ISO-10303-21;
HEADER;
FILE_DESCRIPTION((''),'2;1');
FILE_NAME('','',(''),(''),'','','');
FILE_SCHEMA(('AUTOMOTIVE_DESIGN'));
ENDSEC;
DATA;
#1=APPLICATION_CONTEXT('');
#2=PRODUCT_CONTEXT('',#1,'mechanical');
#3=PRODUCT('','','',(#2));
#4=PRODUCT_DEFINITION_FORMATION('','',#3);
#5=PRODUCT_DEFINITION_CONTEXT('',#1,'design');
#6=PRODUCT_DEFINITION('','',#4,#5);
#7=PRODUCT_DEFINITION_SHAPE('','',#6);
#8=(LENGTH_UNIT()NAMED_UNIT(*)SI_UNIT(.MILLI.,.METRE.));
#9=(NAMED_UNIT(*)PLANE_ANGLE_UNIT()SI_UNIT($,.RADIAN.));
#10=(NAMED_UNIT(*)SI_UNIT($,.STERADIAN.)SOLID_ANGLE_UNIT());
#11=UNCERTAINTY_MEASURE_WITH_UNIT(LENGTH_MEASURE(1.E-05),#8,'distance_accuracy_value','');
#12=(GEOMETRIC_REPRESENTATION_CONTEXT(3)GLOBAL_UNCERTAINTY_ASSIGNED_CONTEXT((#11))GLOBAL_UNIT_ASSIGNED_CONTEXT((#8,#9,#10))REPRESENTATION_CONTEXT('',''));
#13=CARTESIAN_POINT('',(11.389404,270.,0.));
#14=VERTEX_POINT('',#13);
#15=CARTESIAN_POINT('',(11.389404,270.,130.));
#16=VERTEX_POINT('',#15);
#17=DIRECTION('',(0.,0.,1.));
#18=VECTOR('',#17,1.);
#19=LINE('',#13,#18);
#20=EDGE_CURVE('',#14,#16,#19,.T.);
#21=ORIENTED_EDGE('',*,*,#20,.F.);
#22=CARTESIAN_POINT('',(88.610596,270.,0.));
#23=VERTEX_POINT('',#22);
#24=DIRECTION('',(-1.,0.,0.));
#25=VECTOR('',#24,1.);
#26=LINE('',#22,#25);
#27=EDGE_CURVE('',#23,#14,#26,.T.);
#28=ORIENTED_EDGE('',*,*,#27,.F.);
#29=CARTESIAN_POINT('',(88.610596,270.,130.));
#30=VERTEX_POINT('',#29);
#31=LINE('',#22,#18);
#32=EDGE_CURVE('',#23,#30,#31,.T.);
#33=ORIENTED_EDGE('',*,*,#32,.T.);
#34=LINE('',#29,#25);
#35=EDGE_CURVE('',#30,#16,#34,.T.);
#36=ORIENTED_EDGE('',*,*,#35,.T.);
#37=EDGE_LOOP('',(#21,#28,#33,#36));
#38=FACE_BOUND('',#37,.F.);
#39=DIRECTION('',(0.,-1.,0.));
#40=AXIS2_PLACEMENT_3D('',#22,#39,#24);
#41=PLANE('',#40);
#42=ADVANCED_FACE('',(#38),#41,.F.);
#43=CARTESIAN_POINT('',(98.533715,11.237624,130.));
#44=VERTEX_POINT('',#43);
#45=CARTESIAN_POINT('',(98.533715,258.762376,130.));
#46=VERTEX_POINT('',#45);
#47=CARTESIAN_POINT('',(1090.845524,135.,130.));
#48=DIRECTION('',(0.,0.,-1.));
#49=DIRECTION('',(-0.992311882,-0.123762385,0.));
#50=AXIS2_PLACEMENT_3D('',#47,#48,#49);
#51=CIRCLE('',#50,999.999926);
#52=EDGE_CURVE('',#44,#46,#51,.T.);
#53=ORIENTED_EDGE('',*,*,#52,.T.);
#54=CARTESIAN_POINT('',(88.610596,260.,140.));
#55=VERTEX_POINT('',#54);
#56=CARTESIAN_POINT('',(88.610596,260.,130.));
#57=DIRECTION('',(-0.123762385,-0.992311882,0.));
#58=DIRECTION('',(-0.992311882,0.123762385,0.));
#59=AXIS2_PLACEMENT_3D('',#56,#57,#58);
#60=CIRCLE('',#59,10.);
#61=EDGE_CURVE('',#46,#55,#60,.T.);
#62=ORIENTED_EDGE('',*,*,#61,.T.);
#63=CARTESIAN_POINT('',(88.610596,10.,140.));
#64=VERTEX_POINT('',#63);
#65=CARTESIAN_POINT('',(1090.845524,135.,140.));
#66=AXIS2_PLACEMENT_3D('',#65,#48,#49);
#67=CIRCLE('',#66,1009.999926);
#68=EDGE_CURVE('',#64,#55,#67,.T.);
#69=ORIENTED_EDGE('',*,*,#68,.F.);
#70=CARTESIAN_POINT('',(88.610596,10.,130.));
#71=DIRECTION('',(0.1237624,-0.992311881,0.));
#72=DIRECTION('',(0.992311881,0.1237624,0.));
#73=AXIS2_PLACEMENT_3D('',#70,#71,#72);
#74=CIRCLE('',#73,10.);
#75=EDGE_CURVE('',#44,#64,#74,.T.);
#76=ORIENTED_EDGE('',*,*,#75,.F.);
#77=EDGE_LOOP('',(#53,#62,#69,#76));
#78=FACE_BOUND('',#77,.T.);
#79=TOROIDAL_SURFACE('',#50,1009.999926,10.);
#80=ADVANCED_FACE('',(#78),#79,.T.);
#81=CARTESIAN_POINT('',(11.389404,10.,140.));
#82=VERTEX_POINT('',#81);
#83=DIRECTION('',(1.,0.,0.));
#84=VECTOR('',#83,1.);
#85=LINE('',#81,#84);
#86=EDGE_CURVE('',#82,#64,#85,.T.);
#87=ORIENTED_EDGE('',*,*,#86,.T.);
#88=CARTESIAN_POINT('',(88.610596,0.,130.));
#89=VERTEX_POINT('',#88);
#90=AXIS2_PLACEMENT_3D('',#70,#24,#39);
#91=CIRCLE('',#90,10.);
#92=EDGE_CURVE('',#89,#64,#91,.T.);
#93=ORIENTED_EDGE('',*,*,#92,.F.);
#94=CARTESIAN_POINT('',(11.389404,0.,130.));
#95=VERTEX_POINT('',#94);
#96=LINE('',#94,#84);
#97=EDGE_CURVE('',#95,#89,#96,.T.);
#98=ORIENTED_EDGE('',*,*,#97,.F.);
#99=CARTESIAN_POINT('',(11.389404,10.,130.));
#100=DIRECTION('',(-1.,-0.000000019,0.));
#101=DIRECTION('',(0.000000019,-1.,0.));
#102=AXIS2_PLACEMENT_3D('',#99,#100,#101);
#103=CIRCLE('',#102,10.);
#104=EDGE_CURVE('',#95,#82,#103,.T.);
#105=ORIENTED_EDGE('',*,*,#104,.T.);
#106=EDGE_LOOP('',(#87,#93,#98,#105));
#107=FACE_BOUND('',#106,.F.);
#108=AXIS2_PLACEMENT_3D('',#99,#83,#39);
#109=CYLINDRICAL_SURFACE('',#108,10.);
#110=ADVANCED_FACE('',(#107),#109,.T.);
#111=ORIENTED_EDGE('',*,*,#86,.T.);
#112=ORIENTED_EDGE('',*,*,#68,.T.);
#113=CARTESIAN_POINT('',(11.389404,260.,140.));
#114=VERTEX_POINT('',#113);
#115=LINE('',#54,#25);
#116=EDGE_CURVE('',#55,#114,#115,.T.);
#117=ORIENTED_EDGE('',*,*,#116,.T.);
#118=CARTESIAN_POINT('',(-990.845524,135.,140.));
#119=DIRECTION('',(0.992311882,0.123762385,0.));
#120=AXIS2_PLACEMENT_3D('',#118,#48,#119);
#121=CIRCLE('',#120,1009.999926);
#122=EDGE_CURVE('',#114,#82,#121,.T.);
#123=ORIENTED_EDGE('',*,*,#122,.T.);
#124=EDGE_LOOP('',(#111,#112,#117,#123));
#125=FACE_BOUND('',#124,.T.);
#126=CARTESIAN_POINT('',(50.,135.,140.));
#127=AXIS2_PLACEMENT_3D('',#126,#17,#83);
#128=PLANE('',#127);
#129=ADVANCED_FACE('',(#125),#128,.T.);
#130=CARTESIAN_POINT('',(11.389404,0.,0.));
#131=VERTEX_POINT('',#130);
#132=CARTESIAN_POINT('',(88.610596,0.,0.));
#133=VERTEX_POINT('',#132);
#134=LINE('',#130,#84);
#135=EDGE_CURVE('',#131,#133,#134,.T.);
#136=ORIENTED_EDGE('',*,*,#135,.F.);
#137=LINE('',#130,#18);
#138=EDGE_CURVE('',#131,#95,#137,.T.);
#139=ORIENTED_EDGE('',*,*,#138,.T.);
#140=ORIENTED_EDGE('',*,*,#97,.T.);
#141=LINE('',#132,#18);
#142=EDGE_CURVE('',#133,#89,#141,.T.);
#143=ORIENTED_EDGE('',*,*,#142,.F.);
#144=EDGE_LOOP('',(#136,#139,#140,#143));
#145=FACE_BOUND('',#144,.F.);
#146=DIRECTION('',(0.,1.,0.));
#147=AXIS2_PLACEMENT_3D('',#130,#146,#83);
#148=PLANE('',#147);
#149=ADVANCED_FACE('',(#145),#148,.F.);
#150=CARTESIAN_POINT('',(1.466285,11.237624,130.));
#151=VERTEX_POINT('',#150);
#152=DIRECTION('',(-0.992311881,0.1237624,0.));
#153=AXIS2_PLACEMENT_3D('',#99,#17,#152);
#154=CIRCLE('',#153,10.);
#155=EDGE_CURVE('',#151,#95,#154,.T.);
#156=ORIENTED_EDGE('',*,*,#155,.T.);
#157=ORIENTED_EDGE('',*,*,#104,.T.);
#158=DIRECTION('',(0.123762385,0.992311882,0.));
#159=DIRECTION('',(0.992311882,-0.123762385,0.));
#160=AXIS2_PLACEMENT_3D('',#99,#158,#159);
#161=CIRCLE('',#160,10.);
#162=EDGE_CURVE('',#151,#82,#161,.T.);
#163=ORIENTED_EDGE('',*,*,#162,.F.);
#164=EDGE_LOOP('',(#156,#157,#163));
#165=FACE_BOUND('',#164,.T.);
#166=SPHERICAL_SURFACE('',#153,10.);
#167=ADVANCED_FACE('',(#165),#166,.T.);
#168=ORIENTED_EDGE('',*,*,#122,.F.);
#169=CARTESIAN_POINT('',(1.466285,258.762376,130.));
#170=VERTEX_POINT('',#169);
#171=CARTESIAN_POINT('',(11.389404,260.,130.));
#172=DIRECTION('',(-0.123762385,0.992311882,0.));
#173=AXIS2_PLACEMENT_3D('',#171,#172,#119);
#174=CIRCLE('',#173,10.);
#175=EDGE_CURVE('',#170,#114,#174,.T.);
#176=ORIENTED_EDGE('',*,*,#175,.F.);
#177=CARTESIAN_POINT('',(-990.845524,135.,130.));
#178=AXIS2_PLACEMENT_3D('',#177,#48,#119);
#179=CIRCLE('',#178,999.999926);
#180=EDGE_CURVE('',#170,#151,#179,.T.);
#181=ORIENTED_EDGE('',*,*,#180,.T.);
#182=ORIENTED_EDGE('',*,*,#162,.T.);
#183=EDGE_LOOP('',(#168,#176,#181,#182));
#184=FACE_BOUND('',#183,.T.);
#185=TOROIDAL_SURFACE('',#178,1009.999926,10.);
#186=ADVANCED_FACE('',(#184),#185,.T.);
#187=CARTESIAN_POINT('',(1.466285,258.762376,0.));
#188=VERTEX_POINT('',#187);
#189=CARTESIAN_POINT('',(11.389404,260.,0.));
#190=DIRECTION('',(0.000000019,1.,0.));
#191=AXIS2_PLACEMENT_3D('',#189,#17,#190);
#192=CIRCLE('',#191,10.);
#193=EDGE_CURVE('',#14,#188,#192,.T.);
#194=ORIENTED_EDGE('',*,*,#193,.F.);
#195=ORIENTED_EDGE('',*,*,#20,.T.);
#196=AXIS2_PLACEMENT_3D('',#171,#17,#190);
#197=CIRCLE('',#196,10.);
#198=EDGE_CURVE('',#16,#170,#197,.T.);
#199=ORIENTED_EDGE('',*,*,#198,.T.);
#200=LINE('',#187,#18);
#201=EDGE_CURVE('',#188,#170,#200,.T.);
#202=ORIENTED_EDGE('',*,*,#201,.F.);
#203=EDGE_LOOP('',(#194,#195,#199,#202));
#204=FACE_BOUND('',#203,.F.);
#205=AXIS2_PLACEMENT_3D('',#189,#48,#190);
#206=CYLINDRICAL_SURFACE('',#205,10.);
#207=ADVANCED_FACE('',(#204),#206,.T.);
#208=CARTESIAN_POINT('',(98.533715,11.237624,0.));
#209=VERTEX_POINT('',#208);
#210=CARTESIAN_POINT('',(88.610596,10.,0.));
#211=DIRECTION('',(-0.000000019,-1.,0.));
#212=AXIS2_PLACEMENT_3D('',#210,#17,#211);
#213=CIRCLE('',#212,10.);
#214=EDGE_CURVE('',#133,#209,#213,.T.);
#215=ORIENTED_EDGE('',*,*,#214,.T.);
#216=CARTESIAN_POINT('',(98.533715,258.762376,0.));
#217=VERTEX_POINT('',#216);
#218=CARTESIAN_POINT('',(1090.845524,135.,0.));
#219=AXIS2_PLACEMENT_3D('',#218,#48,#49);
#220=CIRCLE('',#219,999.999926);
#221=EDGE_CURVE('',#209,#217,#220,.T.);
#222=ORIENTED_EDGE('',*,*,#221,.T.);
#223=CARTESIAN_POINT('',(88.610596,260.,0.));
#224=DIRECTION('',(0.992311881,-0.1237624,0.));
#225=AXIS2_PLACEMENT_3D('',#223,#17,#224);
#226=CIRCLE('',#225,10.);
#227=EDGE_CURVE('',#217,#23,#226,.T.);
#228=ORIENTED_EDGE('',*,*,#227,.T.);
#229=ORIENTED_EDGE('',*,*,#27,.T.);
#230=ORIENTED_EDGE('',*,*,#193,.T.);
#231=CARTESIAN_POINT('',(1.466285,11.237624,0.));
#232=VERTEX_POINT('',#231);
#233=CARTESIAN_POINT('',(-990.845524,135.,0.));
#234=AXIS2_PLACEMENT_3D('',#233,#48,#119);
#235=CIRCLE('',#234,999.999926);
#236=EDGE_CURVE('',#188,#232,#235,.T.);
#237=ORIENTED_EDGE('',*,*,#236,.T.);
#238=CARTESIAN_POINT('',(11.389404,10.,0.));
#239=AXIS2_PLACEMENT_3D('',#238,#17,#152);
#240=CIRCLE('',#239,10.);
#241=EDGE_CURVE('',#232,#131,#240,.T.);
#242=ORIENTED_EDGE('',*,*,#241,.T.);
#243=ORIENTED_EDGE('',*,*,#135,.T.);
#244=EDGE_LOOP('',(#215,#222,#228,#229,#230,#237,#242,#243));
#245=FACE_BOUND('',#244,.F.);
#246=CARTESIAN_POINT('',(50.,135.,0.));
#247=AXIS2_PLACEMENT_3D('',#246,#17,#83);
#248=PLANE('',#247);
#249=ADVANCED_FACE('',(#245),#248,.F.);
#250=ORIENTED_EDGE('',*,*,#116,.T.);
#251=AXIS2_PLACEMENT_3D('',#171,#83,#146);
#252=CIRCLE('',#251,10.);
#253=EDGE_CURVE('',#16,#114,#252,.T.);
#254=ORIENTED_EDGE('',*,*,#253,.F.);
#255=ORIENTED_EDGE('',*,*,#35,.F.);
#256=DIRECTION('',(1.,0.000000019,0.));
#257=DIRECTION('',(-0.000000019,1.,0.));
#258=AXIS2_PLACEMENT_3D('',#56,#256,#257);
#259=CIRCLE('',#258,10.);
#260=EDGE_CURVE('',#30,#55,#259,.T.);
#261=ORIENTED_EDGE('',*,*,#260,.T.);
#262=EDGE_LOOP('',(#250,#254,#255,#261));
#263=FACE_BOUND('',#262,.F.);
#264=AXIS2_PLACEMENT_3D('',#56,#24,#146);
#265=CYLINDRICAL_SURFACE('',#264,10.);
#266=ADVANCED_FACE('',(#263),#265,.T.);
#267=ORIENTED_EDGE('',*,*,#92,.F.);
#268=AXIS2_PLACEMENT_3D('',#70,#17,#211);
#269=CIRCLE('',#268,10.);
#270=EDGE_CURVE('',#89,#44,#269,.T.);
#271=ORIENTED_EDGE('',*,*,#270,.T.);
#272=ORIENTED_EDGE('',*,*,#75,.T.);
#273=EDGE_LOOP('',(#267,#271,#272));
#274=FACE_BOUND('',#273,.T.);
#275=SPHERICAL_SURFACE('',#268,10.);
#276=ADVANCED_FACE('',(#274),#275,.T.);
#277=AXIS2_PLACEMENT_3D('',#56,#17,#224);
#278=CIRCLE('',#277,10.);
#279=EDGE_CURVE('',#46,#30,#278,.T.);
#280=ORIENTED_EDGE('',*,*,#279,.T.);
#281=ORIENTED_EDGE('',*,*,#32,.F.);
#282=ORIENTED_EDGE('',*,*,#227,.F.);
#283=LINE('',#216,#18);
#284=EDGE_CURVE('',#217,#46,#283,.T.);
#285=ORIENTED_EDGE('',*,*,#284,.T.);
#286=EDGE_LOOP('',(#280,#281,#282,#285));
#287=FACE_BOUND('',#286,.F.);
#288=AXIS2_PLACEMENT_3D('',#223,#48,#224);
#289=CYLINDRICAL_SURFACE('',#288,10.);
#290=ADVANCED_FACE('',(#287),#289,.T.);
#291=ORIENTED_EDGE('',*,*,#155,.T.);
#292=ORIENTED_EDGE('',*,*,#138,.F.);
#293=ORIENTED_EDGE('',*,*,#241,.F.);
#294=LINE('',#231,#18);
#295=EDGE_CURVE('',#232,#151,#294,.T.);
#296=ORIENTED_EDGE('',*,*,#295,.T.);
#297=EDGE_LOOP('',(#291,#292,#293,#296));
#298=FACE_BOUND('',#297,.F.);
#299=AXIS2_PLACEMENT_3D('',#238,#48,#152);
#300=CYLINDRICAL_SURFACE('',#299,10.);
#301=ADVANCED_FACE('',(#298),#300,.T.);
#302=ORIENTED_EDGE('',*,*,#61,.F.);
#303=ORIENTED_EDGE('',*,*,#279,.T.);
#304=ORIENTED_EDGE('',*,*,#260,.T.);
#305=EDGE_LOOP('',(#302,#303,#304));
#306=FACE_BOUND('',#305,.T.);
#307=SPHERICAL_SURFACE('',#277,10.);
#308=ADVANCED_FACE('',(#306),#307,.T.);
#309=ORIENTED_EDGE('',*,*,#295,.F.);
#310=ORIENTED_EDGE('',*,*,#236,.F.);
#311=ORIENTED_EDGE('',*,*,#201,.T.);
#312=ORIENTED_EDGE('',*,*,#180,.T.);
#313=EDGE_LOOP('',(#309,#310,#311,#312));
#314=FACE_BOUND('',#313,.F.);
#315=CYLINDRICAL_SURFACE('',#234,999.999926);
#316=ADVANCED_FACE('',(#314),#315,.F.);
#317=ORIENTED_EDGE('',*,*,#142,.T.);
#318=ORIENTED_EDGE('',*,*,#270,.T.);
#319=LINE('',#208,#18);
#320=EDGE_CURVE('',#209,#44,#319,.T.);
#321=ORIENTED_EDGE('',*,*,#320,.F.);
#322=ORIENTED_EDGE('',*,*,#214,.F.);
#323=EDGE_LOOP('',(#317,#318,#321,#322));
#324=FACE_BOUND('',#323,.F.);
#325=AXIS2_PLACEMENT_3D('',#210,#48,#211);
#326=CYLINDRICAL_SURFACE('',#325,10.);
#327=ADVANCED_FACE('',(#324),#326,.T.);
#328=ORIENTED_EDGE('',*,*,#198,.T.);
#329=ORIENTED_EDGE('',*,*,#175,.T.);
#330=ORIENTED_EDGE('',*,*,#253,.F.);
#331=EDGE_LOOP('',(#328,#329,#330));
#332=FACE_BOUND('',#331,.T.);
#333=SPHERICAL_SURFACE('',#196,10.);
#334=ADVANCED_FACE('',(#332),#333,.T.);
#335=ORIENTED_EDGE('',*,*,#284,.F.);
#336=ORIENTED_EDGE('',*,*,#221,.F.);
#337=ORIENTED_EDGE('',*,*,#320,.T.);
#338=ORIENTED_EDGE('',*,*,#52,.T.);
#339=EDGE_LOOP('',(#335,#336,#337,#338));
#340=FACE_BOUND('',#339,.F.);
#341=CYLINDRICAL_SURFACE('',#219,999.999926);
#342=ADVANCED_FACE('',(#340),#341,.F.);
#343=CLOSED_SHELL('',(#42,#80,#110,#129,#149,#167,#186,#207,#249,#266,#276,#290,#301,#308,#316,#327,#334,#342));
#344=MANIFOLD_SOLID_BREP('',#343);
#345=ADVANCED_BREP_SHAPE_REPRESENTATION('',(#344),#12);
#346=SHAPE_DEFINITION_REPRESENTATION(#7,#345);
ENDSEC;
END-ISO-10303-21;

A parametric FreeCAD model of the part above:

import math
import FreeCAD as App
import Part
import Sketcher
from FreeCAD import Vector
Q = App.Units.Quantity


def edges_at(feature, points):
    """Names of the edges that pass closest to the given points."""
    edges = feature.Shape.Edges
    near = lambda p: min(range(len(edges)), key=lambda i: edges[i].distToShape(Part.Vertex(*p))[0])
    return sorted({f"Edge{near(p) + 1}" for p in points})

doc = App.newDocument("Part")
body = doc.addObject("PartDesign::Body", "Body")

sketch1 = doc.addObject("Sketcher::SketchObject", "Sketch")
body.addObject(sketch1)
sketch1.AttachmentSupport = (doc.XY_Plane, [""])
sketch1.MapMode = "FlatFace"
sketch1.addGeometry([
    Part.ArcOfCircle(Part.Circle(Vector(11, 10, 0), Vector(0, 0, 1), 10), math.radians(173), math.radians(270)),
    Part.LineSegment(Vector(11, 0, 0), Vector(89, 0, 0)),
    Part.ArcOfCircle(Part.Circle(Vector(89, 10, 0), Vector(0, 0, 1), 10), math.radians(-90), math.radians(7)),
    Part.ArcOfCircle(Part.Circle(Vector(1091, 135, 0), Vector(0, 0, 1), 1000), math.radians(172.89), math.radians(187.11)),
    Part.ArcOfCircle(Part.Circle(Vector(89, 260, 0), Vector(0, 0, 1), 10), math.radians(-7), math.radians(90)),
    Part.LineSegment(Vector(89, 270, 0), Vector(11, 270, 0)),
    Part.ArcOfCircle(Part.Circle(Vector(11, 260, 0), Vector(0, 0, 1), 10), math.radians(90), math.radians(187)),
    Part.ArcOfCircle(Part.Circle(Vector(-991, 135, 0), Vector(0, 0, 1), 1000), math.radians(-7.11), math.radians(7.11)),
], False)
sketch1.addConstraint([
    Sketcher.Constraint("Tangent", 0, 2, 1, 1),
    Sketcher.Constraint("Tangent", 1, 2, 2, 1),
    Sketcher.Constraint("Tangent", 2, 2, 3, 2),
    Sketcher.Constraint("Tangent", 3, 1, 4, 1),
    Sketcher.Constraint("Tangent", 4, 2, 5, 1),
    Sketcher.Constraint("Tangent", 5, 2, 6, 1),
    Sketcher.Constraint("Tangent", 6, 2, 7, 2),
    Sketcher.Constraint("Tangent", 7, 1, 0, 1),
    Sketcher.Constraint("Horizontal", 1),
    Sketcher.Constraint("Horizontal", 5),
    Sketcher.Constraint("Equal", 0, 2),
    Sketcher.Constraint("Equal", 2, 4),
    Sketcher.Constraint("Equal", 4, 6),
    Sketcher.Constraint("Equal", 3, 7),
    Sketcher.Constraint("PointOnObject", 0, 2, -1),
    Sketcher.Constraint("Horizontal", 3, 3, 7, 3),
    Sketcher.Constraint("Vertical", 2, 3, 4, 3),
    Sketcher.Constraint("Radius", 0, Q("10 mm")),
    Sketcher.Constraint("DistanceY", -1, 1, 3, 3, Q("135 mm")),
    Sketcher.Constraint("Radius", 3, Q("999.999926 mm")),
    Sketcher.Constraint("DistanceX", 1, 1, 1, 2, Q("77.221192 mm")),
    Sketcher.Constraint("DistanceX", -1, 1, 0, 3, Q("11.389404 mm")),
])
pad1 = doc.addObject("PartDesign::Pad", "Pad")
body.addObject(pad1)
pad1.Profile = sketch1
pad1.Length = 140
doc.recompute()

fillet = doc.addObject("PartDesign::Fillet", "Fillet")
body.addObject(fillet)
fillet.Base = (pad1, edges_at(pad1, [
    (9.154, 135, 140),
    (3.894, 3.381, 140),
    (50, 0, 140),
    (96.106, 3.381, 140),
    (90.846, 135, 140),
    (96.106, 266.619, 140),
    (50, 270, 140),
    (3.894, 266.619, 140),
]))
fillet.Radius = 10

doc.recompute()
